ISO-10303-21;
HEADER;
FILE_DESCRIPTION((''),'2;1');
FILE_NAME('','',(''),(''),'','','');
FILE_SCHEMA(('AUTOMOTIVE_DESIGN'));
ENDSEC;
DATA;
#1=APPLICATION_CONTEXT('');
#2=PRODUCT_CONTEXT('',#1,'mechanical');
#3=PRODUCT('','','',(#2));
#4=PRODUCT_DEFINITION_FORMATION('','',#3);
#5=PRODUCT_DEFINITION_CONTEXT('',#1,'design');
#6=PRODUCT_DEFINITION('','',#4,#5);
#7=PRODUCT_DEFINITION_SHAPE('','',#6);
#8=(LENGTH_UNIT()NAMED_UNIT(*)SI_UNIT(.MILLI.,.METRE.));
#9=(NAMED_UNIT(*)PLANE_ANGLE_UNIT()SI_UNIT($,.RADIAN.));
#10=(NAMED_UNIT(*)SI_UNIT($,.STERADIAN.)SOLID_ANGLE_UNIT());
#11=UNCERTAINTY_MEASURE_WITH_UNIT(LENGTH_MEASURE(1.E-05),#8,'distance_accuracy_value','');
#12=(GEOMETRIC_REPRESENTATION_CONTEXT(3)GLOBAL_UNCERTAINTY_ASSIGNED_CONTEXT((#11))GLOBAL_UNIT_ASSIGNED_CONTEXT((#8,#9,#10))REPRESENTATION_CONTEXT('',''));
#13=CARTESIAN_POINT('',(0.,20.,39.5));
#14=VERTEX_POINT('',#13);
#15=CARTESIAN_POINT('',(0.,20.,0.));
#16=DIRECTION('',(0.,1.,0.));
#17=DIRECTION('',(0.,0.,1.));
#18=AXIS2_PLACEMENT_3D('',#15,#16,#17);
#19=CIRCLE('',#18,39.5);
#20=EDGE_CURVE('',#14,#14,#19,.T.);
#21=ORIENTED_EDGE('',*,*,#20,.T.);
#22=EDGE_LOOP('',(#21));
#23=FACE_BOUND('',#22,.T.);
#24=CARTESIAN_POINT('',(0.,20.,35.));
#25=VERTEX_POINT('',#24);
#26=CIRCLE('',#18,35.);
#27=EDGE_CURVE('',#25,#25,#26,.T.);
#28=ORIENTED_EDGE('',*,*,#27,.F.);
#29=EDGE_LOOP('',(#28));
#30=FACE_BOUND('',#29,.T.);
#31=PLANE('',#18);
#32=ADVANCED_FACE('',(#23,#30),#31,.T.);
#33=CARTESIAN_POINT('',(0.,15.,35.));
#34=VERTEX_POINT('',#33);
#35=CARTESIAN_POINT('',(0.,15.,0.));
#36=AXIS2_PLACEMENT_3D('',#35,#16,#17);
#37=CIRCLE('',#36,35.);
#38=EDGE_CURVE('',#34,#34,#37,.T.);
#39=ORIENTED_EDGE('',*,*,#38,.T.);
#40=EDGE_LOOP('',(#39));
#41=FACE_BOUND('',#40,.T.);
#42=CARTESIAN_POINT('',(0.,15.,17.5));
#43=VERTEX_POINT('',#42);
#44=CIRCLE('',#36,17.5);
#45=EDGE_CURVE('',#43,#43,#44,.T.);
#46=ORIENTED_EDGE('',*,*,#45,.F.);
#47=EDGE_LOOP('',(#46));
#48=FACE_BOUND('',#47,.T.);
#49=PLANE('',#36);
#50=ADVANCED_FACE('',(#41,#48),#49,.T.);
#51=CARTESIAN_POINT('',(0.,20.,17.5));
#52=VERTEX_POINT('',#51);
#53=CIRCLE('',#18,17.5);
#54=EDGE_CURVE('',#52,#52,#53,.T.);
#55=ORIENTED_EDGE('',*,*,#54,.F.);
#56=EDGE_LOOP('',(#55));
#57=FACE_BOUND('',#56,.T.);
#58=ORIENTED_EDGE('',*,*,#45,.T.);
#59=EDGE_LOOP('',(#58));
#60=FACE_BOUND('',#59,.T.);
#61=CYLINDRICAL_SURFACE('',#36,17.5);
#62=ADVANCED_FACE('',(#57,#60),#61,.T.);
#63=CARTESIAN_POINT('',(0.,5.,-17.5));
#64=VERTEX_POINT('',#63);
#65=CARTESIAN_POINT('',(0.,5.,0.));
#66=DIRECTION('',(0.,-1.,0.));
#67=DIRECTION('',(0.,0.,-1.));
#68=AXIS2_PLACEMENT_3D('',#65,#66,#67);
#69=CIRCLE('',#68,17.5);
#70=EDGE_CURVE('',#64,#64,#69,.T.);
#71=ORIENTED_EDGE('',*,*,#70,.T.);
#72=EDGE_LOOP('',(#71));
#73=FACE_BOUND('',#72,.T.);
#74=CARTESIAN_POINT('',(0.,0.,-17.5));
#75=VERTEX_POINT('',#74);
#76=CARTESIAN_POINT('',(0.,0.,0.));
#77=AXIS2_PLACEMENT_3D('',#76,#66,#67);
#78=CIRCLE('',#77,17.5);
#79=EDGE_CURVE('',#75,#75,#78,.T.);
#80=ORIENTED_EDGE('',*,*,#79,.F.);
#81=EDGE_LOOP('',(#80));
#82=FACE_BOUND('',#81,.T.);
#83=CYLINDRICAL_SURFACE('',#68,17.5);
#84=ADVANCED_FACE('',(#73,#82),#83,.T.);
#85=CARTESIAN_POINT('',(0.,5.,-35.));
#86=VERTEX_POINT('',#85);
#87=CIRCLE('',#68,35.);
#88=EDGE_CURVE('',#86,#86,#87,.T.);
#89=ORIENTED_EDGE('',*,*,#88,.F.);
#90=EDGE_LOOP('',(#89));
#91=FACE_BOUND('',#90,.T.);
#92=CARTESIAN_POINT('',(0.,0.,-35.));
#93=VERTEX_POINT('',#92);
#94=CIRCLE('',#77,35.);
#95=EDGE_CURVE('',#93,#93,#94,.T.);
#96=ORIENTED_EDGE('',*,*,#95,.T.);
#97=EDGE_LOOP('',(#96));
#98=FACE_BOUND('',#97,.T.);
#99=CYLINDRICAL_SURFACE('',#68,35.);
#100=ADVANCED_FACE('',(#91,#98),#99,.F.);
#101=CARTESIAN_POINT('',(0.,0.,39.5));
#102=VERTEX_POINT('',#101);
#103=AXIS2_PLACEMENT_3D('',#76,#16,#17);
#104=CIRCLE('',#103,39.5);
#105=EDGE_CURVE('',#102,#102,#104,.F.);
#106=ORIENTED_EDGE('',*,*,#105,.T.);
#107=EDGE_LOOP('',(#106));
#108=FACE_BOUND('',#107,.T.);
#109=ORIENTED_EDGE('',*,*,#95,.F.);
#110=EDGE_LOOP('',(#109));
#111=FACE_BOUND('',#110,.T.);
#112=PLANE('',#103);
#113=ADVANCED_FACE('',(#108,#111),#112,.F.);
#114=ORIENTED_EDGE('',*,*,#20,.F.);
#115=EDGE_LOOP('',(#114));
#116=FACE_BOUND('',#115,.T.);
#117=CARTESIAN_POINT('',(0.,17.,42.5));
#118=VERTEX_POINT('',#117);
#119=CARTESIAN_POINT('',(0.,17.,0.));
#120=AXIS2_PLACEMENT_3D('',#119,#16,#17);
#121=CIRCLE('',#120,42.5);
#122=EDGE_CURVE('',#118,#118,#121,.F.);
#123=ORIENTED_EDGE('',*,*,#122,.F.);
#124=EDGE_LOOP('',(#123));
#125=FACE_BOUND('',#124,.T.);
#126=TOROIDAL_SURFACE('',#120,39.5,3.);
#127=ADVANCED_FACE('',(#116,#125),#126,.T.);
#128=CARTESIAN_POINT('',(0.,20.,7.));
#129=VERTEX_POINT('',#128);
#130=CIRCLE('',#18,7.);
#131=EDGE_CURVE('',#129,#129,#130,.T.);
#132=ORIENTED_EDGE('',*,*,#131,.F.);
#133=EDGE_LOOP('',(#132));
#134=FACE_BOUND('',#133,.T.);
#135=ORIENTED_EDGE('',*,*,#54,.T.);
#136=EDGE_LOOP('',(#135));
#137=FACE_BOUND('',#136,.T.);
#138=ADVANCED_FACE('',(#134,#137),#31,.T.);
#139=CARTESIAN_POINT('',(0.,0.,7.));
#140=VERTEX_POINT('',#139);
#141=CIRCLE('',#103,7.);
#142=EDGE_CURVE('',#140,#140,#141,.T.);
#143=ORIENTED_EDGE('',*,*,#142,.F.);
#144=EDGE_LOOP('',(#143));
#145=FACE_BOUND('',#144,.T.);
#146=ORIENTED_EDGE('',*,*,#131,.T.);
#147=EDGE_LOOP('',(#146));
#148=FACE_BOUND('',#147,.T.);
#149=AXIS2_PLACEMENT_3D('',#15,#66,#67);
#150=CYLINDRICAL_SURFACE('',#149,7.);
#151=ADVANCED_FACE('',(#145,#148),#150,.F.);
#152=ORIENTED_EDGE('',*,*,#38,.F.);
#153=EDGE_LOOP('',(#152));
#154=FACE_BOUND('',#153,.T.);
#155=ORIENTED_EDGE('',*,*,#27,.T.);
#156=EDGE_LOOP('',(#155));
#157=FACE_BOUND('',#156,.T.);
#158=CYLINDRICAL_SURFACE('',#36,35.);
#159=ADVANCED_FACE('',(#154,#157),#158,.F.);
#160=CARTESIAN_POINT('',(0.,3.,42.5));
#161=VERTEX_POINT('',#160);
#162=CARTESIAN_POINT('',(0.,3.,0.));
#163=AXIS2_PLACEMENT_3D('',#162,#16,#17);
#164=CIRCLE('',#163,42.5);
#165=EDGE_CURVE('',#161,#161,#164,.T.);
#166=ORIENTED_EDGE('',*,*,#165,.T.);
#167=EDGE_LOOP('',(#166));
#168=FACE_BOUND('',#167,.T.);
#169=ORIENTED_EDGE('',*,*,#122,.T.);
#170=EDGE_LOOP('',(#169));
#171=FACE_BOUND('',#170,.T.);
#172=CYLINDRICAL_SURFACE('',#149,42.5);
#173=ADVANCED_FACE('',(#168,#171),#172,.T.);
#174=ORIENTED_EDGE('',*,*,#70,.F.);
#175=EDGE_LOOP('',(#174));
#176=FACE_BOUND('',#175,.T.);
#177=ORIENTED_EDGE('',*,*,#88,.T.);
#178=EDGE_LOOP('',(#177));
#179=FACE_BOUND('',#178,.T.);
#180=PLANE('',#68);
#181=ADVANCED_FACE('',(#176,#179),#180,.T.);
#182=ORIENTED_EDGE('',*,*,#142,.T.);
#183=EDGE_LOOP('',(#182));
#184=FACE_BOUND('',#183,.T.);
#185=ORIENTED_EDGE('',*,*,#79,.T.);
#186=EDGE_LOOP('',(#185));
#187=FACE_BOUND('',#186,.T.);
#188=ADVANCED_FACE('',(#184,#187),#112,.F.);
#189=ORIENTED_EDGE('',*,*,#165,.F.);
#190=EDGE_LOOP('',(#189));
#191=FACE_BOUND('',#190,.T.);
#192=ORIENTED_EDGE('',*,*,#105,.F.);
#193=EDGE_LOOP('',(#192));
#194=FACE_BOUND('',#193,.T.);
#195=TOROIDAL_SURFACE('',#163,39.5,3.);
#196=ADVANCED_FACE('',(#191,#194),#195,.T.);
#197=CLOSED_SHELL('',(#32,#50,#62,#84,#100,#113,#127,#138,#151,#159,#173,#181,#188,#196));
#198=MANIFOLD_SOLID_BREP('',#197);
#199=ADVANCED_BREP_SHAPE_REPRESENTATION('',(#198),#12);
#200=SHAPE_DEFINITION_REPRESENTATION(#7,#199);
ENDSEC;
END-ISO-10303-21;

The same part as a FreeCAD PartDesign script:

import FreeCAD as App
import Part
import Sketcher

V = App.Vector
Q = App.Units.Quantity


def edges_at(feature, points):
    """Names of the edges that pass closest to the given points."""
    edges = feature.Shape.Edges
    near = lambda p: min(range(len(edges)), key=lambda i: edges[i].distToShape(Part.Vertex(*p))[0])
    return sorted({f"Edge{near(p) + 1}" for p in points})

doc = App.newDocument("Part")
body = doc.addObject("PartDesign::Body", "Body")

# Sketch on XZ plane
sketch1 = body.newObject("Sketcher::SketchObject", "Sketch")
sketch1.AttachmentSupport = (doc.getObject("XZ_Plane"), [""])
sketch1.MapMode = "FlatFace"
sketch1.addGeometry([
    Part.Circle(V(0, 0, 0), V(0, 0, 1), 42),
    Part.Circle(V(0, 0, 0), V(0, 0, 1), 7),
], False)
sketch1.addConstraint([
    Sketcher.Constraint("Coincident", 0, 3, -1, 1),
    Sketcher.Constraint("Coincident", 1, 3, -1, 1),
    Sketcher.Constraint("Diameter", 0, Q("85 mm")),
    Sketcher.Constraint("Diameter", 1, Q("14 mm")),
])
pad1 = body.newObject("PartDesign::Pad", "Pad")
pad1.Profile = sketch1
pad1.Length = 20
pad1.Reversed = True

# Sketch on XZ plane
sketch2 = body.newObject("Sketcher::SketchObject", "Sketch001")
sketch2.AttachmentSupport = (doc.getObject("XZ_Plane"), [""])
sketch2.MapMode = "FlatFace"
sketch2.AttachmentOffset = App.Placement(V(0, 0, -20), App.Rotation())
sketch2.addGeometry([
    Part.Circle(V(0, 0, 0), V(0, 0, 1), 35),
    Part.Circle(V(0, 0, 0), V(0, 0, 1), 18),
], False)
sketch2.addConstraint([
    Sketcher.Constraint("Coincident", 0, 3, -1, 1),
    Sketcher.Constraint("Coincident", 1, 3, -1, 1),
    Sketcher.Constraint("Diameter", 0, Q("70 mm")),
    Sketcher.Constraint("Diameter", 1, Q("35 mm")),
])
pocket1 = body.newObject("PartDesign::Pocket", "Pocket")
pocket1.Profile = sketch2
pocket1.Length = 5
pocket1.Reversed = True

# Sketch on XZ plane
sketch3 = body.newObject("Sketcher::SketchObject", "Sketch002")
sketch3.AttachmentSupport = (doc.getObject("XZ_Plane"), [""])
sketch3.MapMode = "FlatFace"
sketch3.AttachmentOffset = App.Placement(V(0, 0, -5), App.Rotation())
sketch3.addGeometry([
    Part.Circle(V(0, 0, 0), V(0, 0, 1), 35),
    Part.Circle(V(0, 0, 0), V(0, 0, 1), 18),
], False)
sketch3.addConstraint([
    Sketcher.Constraint("Coincident", 0, 3, -1, 1),
    Sketcher.Constraint("Coincident", 1, 3, -1, 1),
    Sketcher.Constraint("Diameter", 0, Q("70 mm")),
    Sketcher.Constraint("Diameter", 1, Q("35 mm")),
])
pocket2 = body.newObject("PartDesign::Pocket", "Pocket001")
pocket2.Profile = sketch3
pocket2.Length = 5
pocket2.Reversed = True
doc.recompute()

fillet = body.newObject("PartDesign::Fillet", "Fillet")
fillet.Base = (pocket2, edges_at(pocket2, [(0, 0, -42.5), (0, 20, -42.5)]))
fillet.Radius = 3

doc.recompute()
